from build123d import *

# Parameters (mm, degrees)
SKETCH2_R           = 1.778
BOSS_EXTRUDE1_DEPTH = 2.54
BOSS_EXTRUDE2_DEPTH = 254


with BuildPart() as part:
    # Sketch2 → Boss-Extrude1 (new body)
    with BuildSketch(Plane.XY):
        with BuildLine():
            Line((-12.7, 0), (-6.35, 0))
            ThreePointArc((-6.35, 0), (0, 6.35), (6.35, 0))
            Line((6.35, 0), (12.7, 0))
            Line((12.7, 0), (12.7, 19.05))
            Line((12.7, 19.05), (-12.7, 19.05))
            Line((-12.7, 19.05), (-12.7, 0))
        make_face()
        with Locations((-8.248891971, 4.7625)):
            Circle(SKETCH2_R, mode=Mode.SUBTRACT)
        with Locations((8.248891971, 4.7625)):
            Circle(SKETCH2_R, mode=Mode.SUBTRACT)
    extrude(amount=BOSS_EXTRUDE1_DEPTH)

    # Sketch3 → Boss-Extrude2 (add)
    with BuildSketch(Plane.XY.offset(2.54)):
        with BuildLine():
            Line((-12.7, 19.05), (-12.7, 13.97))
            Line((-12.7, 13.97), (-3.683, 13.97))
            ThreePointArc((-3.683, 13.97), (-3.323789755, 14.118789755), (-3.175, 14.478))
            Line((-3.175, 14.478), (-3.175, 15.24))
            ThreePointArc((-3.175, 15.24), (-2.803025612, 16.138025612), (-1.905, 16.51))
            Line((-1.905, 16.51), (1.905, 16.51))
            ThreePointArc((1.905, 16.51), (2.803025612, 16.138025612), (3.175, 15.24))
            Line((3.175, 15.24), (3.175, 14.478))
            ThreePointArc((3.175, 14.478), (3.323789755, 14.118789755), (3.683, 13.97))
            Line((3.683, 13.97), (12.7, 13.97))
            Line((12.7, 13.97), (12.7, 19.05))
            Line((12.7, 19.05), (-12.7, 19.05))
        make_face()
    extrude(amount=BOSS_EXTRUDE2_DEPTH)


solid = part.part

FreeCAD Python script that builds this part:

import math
import FreeCAD as App
import Part
import Sketcher

V = App.Vector
Q = App.Units.Quantity

doc = App.newDocument("Part")
body = doc.addObject("PartDesign::Body", "Body")

# Sketch on XY plane
sketch1 = body.newObject("Sketcher::SketchObject", "Sketch")
sketch1.AttachmentSupport = (doc.getObject("XY_Plane"), [""])
sketch1.MapMode = "FlatFace"
sketch1.addGeometry([
    Part.LineSegment(V(-12.7, 0, 0), V(-6.3, 0, 0)),  # 0
    Part.ArcOfCircle(Part.Circle(V(0, 0, 0), V(0, 0, 1), 6.3), math.radians(0), math.radians(180)),  # 1
    Part.LineSegment(V(6.3, 0, 0), V(12.7, 0, 0)),  # 2
    Part.LineSegment(V(12.7, 0, 0), V(12.7, 19.1, 0)),  # 3
    Part.LineSegment(V(12.7, 19.1, 0), V(-12.7, 19.1, 0)),  # 4
    Part.LineSegment(V(-12.7, 19.1, 0), V(-12.7, 0, 0)),  # 5
    Part.Circle(V(-8.2, 4.8, 0), V(0, 0, 1), 1.8),  # 6
    Part.Circle(V(8.2, 4.8, 0), V(0, 0, 1), 1.8),  # 7
], False)
sketch1.addConstraint([
    Sketcher.Constraint("Coincident", 0, 2, 1, 2),
    Sketcher.Constraint("Coincident", 1, 1, 2, 1),
    Sketcher.Constraint("Coincident", 2, 2, 3, 1),
    Sketcher.Constraint("Coincident", 3, 2, 4, 1),
    Sketcher.Constraint("Coincident", 4, 2, 5, 1),
    Sketcher.Constraint("Coincident", 5, 2, 0, 1),
    Sketcher.Constraint("Horizontal", 0),
    Sketcher.Constraint("Horizontal", 2),
    Sketcher.Constraint("Vertical", 3),
    Sketcher.Constraint("Horizontal", 4),
    Sketcher.Constraint("Vertical", 5),
    Sketcher.Constraint("Coincident", 1, 3, -1, 1),
    Sketcher.Constraint("Equal", 6, 7),
    Sketcher.Constraint("Symmetric", 2, 2, 5, 2, -1, 1),
    Sketcher.Constraint("Symmetric", 6, 3, 7, 3, -2),
    Sketcher.Constraint("PointOnObject", 0, 2, -1),
    Sketcher.Constraint("Diameter", 6, Q("0.14 in")),
    Sketcher.Constraint("DistanceX", 4, 2, 4, 1, Q("1 in")),
    Sketcher.Constraint("Radius", 1, Q("0.25 in")),
    Sketcher.Constraint("DistanceY", 3, 1, 3, 2, Q("0.75 in")),
    Sketcher.Constraint("DistanceY", -1, 1, 6, 3, Q("0.1875 in")),
    Sketcher.Constraint("DistanceX", 6, 3, -1, 1, 8.248892),
])
pad1 = body.newObject("PartDesign::Pad", "Pad")
pad1.Profile = sketch1
pad1.Length = Q("0.1 in")

# Sketch on XY plane
sketch2 = body.newObject("Sketcher::SketchObject", "Sketch001")
sketch2.AttachmentSupport = (doc.getObject("XY_Plane"), [""])
sketch2.MapMode = "FlatFace"
sketch2.AttachmentOffset = App.Placement(V(0, 0, 0.1 * 25.4), App.Rotation())
sketch2.addGeometry([
    Part.LineSegment(V(-12.7, 19.1, 0), V(-12.7, 14, 0)),  # 0
    Part.LineSegment(V(-12.7, 14, 0), V(-3.7, 14, 0)),  # 1
    Part.ArcOfCircle(Part.Circle(V(-3.7, 14.5, 0), V(0, 0, 1), 0.5), math.radians(-90), math.radians(0)),  # 2
    Part.LineSegment(V(-3.2, 14.5, 0), V(-3.2, 15.2, 0)),  # 3
    Part.ArcOfCircle(Part.Circle(V(-1.9, 15.2, 0), V(0, 0, 1), 1.3), math.radians(90), math.radians(180)),  # 4
    Part.LineSegment(V(-1.9, 16.5, 0), V(1.9, 16.5, 0)),  # 5
    Part.ArcOfCircle(Part.Circle(V(1.9, 15.2, 0), V(0, 0, 1), 1.3), math.radians(0), math.radians(90)),  # 6
    Part.LineSegment(V(3.2, 15.2, 0), V(3.2, 14.5, 0)),  # 7
    Part.ArcOfCircle(Part.Circle(V(3.7, 14.5, 0), V(0, 0, 1), 0.5), math.radians(180), math.radians(270)),  # 8
    Part.LineSegment(V(3.7, 14, 0), V(12.7, 14, 0)),  # 9
    Part.LineSegment(V(12.7, 14, 0), V(12.7, 19.1, 0)),  # 10
    Part.LineSegment(V(12.7, 19.1, 0), V(-12.7, 19.1, 0)),  # 11
], False)
sketch2.addConstraint([
    Sketcher.Constraint("Coincident", 0, 2, 1, 1),
    Sketcher.Constraint("Tangent", 1, 2, 2, 1),
    Sketcher.Constraint("Tangent", 2, 2, 3, 1),
    Sketcher.Constraint("Tangent", 3, 2, 4, 2),
    Sketcher.Constraint("Tangent", 4, 1, 5, 1),
    Sketcher.Constraint("Tangent", 5, 2, 6, 2),
    Sketcher.Constraint("Tangent", 6, 1, 7, 1),
    Sketcher.Constraint("Tangent", 7, 2, 8, 1),
    Sketcher.Constraint("Tangent", 8, 2, 9, 1),
    Sketcher.Constraint("Coincident", 9, 2, 10, 1),
    Sketcher.Constraint("Coincident", 10, 2, 11, 1),
    Sketcher.Constraint("Coincident", 11, 2, 0, 1),
    Sketcher.Constraint("Vertical", 0),
    Sketcher.Constraint("Horizontal", 1),
    Sketcher.Constraint("Vertical", 3),
    Sketcher.Constraint("Horizontal", 5),
    Sketcher.Constraint("Vertical", 7),
    Sketcher.Constraint("Horizontal", 9),
    Sketcher.Constraint("Vertical", 10),
    Sketcher.Constraint("Horizontal", 11),
    Sketcher.Constraint("Equal", 4, 6),
    Sketcher.Constraint("Equal", 2, 8),
    Sketcher.Constraint("Symmetric", 2, 3, 8, 3, -2),
    Sketcher.Constraint("Equal", 1, 9),
    Sketcher.Constraint("DistanceX", 11, 2, 11, 1, Q("1 in")),
    Sketcher.Constraint("Radius", 2, Q("0.02 in")),
    Sketcher.Constraint("Radius", 4, Q("0.05 in")),
    Sketcher.Constraint("DistanceY", 0, 2, 0, 1, Q("0.2 in")),
    Sketcher.Constraint("DistanceX", 5, 1, 5, 2, Q("0.15 in")),
    Sketcher.Constraint("DistanceY", 3, 1, 3, 2, Q("0.03 in")),
    Sketcher.Constraint("DistanceY", -1, 1, 4, 3, Q("0.6 in")),
])
pad2 = body.newObject("PartDesign::Pad", "Pad001")
pad2.Profile = sketch2
pad2.Length = Q("10 in")

doc.recompute()
